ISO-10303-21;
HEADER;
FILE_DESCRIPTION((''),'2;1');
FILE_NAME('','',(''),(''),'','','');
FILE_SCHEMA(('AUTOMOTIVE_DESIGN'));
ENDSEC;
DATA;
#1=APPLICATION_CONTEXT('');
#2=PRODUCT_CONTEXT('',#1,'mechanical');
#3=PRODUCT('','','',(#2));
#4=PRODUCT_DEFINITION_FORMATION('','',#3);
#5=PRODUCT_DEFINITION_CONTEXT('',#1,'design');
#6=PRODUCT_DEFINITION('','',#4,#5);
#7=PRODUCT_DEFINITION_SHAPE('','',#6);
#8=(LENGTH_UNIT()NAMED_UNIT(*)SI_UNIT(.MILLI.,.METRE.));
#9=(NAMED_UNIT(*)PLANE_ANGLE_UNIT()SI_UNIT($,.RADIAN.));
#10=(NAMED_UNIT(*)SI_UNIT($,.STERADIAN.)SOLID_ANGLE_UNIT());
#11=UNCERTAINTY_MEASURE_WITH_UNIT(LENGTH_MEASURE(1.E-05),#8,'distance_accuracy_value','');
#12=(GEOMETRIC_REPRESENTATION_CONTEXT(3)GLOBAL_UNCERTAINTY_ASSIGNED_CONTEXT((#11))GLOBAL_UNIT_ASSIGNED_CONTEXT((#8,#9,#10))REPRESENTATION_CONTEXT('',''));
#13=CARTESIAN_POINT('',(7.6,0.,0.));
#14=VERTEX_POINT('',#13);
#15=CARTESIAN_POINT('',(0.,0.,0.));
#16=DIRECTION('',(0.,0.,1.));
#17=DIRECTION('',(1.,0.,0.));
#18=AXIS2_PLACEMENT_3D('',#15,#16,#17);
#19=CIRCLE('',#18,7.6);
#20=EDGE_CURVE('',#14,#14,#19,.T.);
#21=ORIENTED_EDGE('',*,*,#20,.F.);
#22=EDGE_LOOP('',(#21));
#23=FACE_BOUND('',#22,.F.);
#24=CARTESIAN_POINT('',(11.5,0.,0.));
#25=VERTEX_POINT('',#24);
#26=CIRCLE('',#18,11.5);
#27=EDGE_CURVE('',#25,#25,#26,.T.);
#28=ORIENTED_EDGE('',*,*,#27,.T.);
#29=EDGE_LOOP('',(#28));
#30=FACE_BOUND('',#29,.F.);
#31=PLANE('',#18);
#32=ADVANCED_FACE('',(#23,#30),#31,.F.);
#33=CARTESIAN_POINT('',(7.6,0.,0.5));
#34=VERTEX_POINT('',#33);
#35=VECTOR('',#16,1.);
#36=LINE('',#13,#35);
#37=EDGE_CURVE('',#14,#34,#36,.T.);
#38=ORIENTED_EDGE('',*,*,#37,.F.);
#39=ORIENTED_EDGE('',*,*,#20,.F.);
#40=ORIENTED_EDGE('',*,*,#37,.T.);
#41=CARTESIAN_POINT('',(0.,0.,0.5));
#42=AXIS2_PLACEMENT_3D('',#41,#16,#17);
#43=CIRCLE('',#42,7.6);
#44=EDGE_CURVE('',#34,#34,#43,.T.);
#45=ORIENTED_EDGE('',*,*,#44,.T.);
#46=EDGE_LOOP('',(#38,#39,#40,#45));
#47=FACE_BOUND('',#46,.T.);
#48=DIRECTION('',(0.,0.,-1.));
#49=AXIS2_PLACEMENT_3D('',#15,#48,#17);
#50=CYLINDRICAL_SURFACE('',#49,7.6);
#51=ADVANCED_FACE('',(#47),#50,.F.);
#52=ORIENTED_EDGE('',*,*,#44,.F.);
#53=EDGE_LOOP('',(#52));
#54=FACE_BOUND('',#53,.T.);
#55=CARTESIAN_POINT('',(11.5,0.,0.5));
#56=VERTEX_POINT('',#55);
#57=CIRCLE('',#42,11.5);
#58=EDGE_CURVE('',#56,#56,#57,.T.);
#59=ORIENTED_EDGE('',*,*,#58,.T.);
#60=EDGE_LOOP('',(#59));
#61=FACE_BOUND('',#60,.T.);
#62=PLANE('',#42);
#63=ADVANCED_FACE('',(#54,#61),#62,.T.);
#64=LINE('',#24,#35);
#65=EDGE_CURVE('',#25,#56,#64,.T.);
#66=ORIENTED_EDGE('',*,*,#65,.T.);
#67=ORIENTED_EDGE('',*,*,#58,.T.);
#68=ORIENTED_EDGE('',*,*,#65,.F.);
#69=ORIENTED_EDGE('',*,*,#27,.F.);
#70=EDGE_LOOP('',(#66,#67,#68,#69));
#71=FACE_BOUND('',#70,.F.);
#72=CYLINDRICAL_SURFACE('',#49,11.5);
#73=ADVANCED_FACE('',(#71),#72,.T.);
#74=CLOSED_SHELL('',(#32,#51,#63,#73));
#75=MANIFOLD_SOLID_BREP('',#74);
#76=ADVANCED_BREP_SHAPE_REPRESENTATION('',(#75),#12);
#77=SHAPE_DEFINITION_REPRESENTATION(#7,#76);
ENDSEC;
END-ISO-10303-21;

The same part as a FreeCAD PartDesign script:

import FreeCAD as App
import Part
import Sketcher

doc = App.newDocument("Part")
body = doc.addObject("PartDesign::Body", "Body")

# Sketch on XY plane
sketch1 = body.newObject("Sketcher::SketchObject", "Sketch")
sketch1.AttachmentSupport = (doc.getObject("XY_Plane"), [""])
sketch1.MapMode = "FlatFace"
sketch1.addGeometry([
    Part.Circle(App.Vector(0, 0, 0), App.Vector(0, 0, 1), 12),
    Part.Circle(App.Vector(0, 0, 0), App.Vector(0, 0, 1), 8),
], False)
sketch1.addConstraint([
    Sketcher.Constraint("Coincident", 0, 3, -1, 1),
    Sketcher.Constraint("Coincident", 1, 3, -1, 1),
    Sketcher.Constraint("Diameter", 0, 23.0),
    Sketcher.Constraint("Diameter", 1, 15.2),
])
pad1 = body.newObject("PartDesign::Pad", "Pad")
pad1.Profile = sketch1
pad1.Length = 0.5

doc.recompute()
